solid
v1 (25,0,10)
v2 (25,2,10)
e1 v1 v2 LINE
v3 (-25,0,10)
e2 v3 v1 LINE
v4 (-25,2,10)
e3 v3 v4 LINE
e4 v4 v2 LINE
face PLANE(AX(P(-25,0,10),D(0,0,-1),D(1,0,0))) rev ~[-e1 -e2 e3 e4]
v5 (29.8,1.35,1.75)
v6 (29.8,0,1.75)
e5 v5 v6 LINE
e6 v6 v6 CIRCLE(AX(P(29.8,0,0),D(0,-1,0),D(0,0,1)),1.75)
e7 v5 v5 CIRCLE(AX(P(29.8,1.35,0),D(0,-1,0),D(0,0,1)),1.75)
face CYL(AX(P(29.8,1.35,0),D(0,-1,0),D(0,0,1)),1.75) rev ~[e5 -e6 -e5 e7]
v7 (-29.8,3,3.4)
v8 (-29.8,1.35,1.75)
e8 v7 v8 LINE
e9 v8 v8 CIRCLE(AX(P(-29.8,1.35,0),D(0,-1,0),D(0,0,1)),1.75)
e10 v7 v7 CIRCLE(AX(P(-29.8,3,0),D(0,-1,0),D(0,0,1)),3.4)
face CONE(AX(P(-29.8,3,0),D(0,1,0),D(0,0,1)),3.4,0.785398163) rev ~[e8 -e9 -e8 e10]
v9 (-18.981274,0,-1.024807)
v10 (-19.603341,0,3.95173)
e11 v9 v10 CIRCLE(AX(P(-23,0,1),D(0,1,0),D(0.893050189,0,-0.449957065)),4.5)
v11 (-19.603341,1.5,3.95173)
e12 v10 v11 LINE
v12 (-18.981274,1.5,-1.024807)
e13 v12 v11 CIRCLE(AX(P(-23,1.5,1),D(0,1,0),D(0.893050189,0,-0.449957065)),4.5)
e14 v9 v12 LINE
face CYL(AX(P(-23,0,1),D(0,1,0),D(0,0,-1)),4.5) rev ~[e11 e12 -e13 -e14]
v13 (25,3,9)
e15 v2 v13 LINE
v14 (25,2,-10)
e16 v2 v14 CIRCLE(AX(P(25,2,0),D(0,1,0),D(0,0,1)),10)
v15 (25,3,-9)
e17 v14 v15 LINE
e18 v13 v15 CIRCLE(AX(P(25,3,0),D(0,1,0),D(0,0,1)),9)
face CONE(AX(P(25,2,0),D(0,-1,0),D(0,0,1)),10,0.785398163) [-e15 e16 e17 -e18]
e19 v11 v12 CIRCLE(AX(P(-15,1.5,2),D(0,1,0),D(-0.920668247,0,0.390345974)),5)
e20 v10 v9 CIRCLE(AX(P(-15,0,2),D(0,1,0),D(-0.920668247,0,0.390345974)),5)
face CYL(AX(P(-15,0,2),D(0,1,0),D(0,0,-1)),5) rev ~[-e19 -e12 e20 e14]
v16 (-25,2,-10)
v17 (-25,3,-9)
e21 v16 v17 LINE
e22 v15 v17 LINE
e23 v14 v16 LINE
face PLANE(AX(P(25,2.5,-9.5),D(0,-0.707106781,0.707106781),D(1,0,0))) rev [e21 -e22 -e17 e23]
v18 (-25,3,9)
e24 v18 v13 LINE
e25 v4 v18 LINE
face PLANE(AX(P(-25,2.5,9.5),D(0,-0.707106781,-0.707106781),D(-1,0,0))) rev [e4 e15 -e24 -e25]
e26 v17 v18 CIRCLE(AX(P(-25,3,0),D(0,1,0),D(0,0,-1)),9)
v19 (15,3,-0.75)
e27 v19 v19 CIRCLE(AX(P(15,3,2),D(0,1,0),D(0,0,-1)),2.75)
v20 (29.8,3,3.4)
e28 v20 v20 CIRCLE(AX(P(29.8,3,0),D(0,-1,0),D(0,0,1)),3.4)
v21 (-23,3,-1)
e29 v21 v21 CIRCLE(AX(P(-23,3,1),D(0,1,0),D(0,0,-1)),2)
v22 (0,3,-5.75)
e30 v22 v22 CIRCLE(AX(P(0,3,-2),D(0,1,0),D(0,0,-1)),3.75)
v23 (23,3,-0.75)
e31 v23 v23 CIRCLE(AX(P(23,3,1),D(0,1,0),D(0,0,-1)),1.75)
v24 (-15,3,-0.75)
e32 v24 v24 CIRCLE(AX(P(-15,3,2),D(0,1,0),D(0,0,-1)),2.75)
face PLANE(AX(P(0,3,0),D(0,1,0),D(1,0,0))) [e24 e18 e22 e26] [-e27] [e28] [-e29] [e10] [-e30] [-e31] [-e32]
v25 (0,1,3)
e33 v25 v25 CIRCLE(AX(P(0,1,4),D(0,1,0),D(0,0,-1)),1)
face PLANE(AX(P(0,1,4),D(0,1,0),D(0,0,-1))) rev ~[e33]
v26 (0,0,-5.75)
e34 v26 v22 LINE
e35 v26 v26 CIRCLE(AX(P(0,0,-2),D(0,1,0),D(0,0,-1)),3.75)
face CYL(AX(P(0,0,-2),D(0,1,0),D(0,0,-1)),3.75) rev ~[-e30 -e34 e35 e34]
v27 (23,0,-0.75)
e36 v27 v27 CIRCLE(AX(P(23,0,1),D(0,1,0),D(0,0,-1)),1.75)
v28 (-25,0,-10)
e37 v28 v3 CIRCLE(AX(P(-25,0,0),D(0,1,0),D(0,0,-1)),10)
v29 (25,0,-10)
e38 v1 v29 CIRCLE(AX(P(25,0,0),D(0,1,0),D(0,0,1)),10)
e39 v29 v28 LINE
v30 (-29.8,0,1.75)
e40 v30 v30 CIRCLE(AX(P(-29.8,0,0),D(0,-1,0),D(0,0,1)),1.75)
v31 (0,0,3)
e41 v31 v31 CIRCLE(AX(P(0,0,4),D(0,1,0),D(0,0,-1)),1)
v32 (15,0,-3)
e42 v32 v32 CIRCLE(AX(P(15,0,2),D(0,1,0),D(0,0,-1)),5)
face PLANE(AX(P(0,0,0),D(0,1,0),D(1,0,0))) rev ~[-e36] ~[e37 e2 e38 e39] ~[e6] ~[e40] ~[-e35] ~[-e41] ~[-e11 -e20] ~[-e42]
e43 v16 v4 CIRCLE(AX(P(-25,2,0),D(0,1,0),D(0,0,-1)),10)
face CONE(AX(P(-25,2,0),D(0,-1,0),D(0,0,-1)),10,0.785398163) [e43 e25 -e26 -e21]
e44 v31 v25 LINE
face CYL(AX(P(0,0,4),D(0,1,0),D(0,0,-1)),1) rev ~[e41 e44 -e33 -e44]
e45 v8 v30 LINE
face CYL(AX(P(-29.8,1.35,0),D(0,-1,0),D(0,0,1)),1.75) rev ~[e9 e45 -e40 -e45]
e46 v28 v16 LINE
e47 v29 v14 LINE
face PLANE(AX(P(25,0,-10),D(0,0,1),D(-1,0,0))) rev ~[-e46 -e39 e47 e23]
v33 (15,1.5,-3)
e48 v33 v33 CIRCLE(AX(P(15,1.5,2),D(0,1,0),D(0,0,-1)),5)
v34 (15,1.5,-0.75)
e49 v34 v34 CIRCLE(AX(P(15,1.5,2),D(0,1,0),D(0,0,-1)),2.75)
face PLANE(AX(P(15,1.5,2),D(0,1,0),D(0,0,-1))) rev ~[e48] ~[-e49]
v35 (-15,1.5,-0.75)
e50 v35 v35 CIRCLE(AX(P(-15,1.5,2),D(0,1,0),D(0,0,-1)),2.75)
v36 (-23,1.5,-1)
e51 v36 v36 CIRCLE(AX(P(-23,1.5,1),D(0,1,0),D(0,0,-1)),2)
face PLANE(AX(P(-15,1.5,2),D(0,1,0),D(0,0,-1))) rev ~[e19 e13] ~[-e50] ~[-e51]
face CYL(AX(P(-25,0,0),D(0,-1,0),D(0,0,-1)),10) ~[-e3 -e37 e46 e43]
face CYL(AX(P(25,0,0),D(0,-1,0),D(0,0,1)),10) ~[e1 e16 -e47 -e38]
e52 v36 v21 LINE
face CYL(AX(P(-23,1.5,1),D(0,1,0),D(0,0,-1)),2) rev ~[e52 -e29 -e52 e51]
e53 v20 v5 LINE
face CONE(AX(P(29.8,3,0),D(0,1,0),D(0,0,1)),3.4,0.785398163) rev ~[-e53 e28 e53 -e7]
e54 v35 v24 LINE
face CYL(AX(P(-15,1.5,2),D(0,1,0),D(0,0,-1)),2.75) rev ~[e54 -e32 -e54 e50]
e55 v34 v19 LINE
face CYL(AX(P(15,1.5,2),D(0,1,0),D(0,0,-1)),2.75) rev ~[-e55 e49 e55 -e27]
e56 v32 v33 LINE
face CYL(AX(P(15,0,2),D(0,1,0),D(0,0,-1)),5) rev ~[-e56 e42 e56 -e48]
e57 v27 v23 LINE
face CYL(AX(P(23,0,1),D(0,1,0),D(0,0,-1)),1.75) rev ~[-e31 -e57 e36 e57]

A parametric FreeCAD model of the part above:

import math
import FreeCAD as App
import Part
import Sketcher

V = App.Vector
Q = App.Units.Quantity


def edges_at(feature, points):
    """Names of the edges that pass closest to the given points."""
    edges = feature.Shape.Edges
    near = lambda p: min(range(len(edges)), key=lambda i: edges[i].distToShape(Part.Vertex(*p))[0])
    return sorted({f"Edge{near(p) + 1}" for p in points})

doc = App.newDocument("Part")
params = doc.addObject("Spreadsheet::Sheet", "Params")
for row, (alias, value) in enumerate([
    ("sketch1_radius", "10 mm"),
    ("sketch1_width", "50 mm"),
    ("pad1_length", "3 mm"),
    ("chamfer_size", "1 mm"),
    ("sketch2_diameter", "3.5 mm"),
    ("hole_diameter", "3.5 mm"),
    ("hole_csink_diameter", "6.8 mm"),
    ("sketch3_diameter", "7.5 mm"),
    ("hole2_diameter", "7.5 mm"),
    ("sketch4_diameter", "2 mm"),
    ("hole3_diameter", "2 mm"),
    ("hole3_depth", "1 mm"),
    ("sketch5_diameter", "5.5 mm"),
    ("hole4_diameter", "5.5 mm"),
    ("hole4_cbore_diameter", "10 mm"),
    ("hole4_cbore_depth", "1.5 mm"),
    ("sketch6_diameter", "4 mm"),
    ("hole5_diameter", "4 mm"),
    ("hole5_cbore_diameter", "9 mm"),
    ("hole5_cbore_depth", "1.5 mm"),
    ("sketch7_diameter", "3.5 mm"),
    ("hole6_diameter", "3.5 mm"),
], start=1):
    params.set(f"A{row}", alias)
    params.set(f"B{row}", "=" + value)
    params.setAlias(f"B{row}", alias)

body = doc.addObject("PartDesign::Body", "Body")

sketch1 = body.newObject("Sketcher::SketchObject", "Sketch")
sketch1.AttachmentSupport = (doc.getObject("XZ_Plane"), [""])
sketch1.MapMode = "FlatFace"
sketch1.addGeometry([
    Part.ArcOfCircle(Part.Circle(V(-25, 0, 0), V(0, 0, 1), 10), math.radians(90), math.radians(270)),
    Part.LineSegment(V(-25, 10, 0), V(25, 10, 0)),
    Part.ArcOfCircle(Part.Circle(V(25, 0, 0), V(0, 0, 1), 10), math.radians(-90), math.radians(90)),
    Part.LineSegment(V(25, -10, 0), V(-25, -10, 0)),
], False)
sketch1.addConstraint([
    Sketcher.Constraint("Tangent", 0, 1, 1, 1),
    Sketcher.Constraint("Tangent", 1, 2, 2, 2),
    Sketcher.Constraint("Tangent", 2, 1, 3, 1),
    Sketcher.Constraint("Tangent", 3, 2, 0, 2),
    Sketcher.Constraint("Horizontal", 1),
    Sketcher.Constraint("Horizontal", 3),
    Sketcher.Constraint("Symmetric", 0, 3, 2, 3, -1, 1),
    Sketcher.Constraint("Radius", 0, Q("10 mm")),
    Sketcher.Constraint("DistanceX", 1, 1, 1, 2, Q("50 mm")),
])
sketch1.setExpression("Constraints[7]", "Params.sketch1_radius")
sketch1.setExpression("Constraints[8]", "Params.sketch1_width")
pad1 = body.newObject("PartDesign::Pad", "Pad")
pad1.Profile = sketch1
pad1.setExpression("Length", "Params.pad1_length")
pad1.Reversed = True
doc.recompute()

chamfer = body.newObject("PartDesign::Chamfer", "Chamfer")
chamfer.Base = (pad1, edges_at(pad1, [
    (0, 3, -10),
    (-35, 3, 0),
    (0, 3, 10),
    (35, 3, 0),
]))
chamfer.setExpression("Size", "Params.chamfer_size")

sketch2 = body.newObject("Sketcher::SketchObject", "Sketch001")
sketch2.AttachmentSupport = (doc.getObject("XZ_Plane"), [""])
sketch2.MapMode = "FlatFace"
sketch2.AttachmentOffset = App.Placement(V(0, 0, -3), App.Rotation())
sketch2.addGeometry([
    Part.Circle(V(-29.8, 0, 0), V(0, 0, 1), 1.8),
    Part.Circle(V(29.8, 0, 0), V(0, 0, 1), 1.8),
], False)
sketch2.addConstraint([
    Sketcher.Constraint("Equal", 0, 1),
    Sketcher.Constraint("Symmetric", 0, 3, 1, 3, -1, 1),
    Sketcher.Constraint("PointOnObject", 0, 3, -1),
    Sketcher.Constraint("Diameter", 0, Q("3.5 mm")),
    Sketcher.Constraint("DistanceX", 0, 3, -1, 1, Q("29.8 mm")),
])
sketch2.setExpression("Constraints[3]", "Params.sketch2_diameter")
doc.recompute()
hole = body.newObject("PartDesign::Hole", "Hole")
hole.Profile = sketch2
hole.ThreadType = "None"
hole.setExpression("Diameter", "Params.hole_diameter")
hole.DepthType = "ThroughAll"
hole.HoleCutType = "Countersink"
hole.setExpression("HoleCutDiameter", "Params.hole_csink_diameter")
hole.HoleCutCountersinkAngle = 90
hole.Reversed = True

sketch3 = body.newObject("Sketcher::SketchObject", "Sketch002")
sketch3.AttachmentSupport = (doc.getObject("XZ_Plane"), [""])
sketch3.MapMode = "FlatFace"
sketch3.addGeometry(Part.Circle(V(0, -2, 0), V(0, 0, 1), 3.8), False)
sketch3.addConstraint([
    Sketcher.Constraint("PointOnObject", 0, 3, -2),
    Sketcher.Constraint("Diameter", 0, Q("7.5 mm")),
    Sketcher.Constraint("DistanceY", 0, 3, -1, 1, Q("2 mm")),
])
sketch3.setExpression("Constraints[1]", "Params.sketch3_diameter")
doc.recompute()
hole2 = body.newObject("PartDesign::Hole", "Hole001")
hole2.Profile = sketch3
hole2.ThreadType = "None"
hole2.setExpression("Diameter", "Params.hole2_diameter")
hole2.DepthType = "ThroughAll"

sketch4 = body.newObject("Sketcher::SketchObject", "Sketch003")
sketch4.AttachmentSupport = (doc.getObject("XZ_Plane"), [""])
sketch4.MapMode = "FlatFace"
sketch4.addGeometry(Part.Circle(V(0, 4, 0), V(0, 0, 1), 1), False)
sketch4.addConstraint([
    Sketcher.Constraint("PointOnObject", 0, 3, -2),
    Sketcher.Constraint("Diameter", 0, Q("2 mm")),
    Sketcher.Constraint("DistanceY", -1, 1, 0, 3, Q("4 mm")),
])
sketch4.setExpression("Constraints[1]", "Params.sketch4_diameter")
doc.recompute()
hole3 = body.newObject("PartDesign::Hole", "Hole002")
hole3.Profile = sketch4
hole3.ThreadType = "None"
hole3.setExpression("Diameter", "Params.hole3_diameter")
hole3.DepthType = "Dimension"
hole3.setExpression("Depth", "Params.hole3_depth")
hole3.DrillPoint = "Flat"

sketch5 = body.newObject("Sketcher::SketchObject", "Sketch004")
sketch5.AttachmentSupport = (doc.getObject("XZ_Plane"), [""])
sketch5.MapMode = "FlatFace"
sketch5.addGeometry([
    Part.Circle(V(-15, 2, 0), V(0, 0, 1), 2.8),
    Part.Circle(V(15, 2, 0), V(0, 0, 1), 2.8),
], False)
sketch5.addConstraint([
    Sketcher.Constraint("Equal", 0, 1),
    Sketcher.Constraint("Symmetric", 0, 3, 1, 3, -2),
    Sketcher.Constraint("Diameter", 0, Q("5.5 mm")),
    Sketcher.Constraint("DistanceX", 0, 3, -1, 1, Q("15 mm")),
    Sketcher.Constraint("DistanceY", -1, 1, 0, 3, Q("2 mm")),
])
sketch5.setExpression("Constraints[2]", "Params.sketch5_diameter")
doc.recompute()
hole4 = body.newObject("PartDesign::Hole", "Hole003")
hole4.Profile = sketch5
hole4.ThreadType = "None"
hole4.setExpression("Diameter", "Params.hole4_diameter")
hole4.DepthType = "ThroughAll"
hole4.HoleCutType = "Counterbore"
hole4.setExpression("HoleCutDiameter", "Params.hole4_cbore_diameter")
hole4.setExpression("HoleCutDepth", "Params.hole4_cbore_depth")

sketch6 = body.newObject("Sketcher::SketchObject", "Sketch005")
sketch6.AttachmentSupport = (doc.getObject("XZ_Plane"), [""])
sketch6.MapMode = "FlatFace"
sketch6.addGeometry(Part.Circle(V(-23, 1, 0), V(0, 0, 1), 2), False)
sketch6.addConstraint([
    Sketcher.Constraint("Diameter", 0, Q("4 mm")),
    Sketcher.Constraint("DistanceX", 0, 3, -1, 1, Q("23 mm")),
    Sketcher.Constraint("DistanceY", -1, 1, 0, 3, Q("1 mm")),
])
sketch6.setExpression("Constraints[0]", "Params.sketch6_diameter")
doc.recompute()
hole5 = body.newObject("PartDesign::Hole", "Hole004")
hole5.Profile = sketch6
hole5.ThreadType = "None"
hole5.setExpression("Diameter", "Params.hole5_diameter")
hole5.DepthType = "ThroughAll"
hole5.HoleCutType = "Counterbore"
hole5.setExpression("HoleCutDiameter", "Params.hole5_cbore_diameter")
hole5.setExpression("HoleCutDepth", "Params.hole5_cbore_depth")

sketch7 = body.newObject("Sketcher::SketchObject", "Sketch006")
sketch7.AttachmentSupport = (doc.getObject("XZ_Plane"), [""])
sketch7.MapMode = "FlatFace"
sketch7.addGeometry(Part.Circle(V(23, 1, 0), V(0, 0, 1), 1.8), False)
sketch7.addConstraint([
    Sketcher.Constraint("Diameter", 0, Q("3.5 mm")),
    Sketcher.Constraint("DistanceX", -1, 1, 0, 3, Q("23 mm")),
    Sketcher.Constraint("DistanceY", -1, 1, 0, 3, Q("1 mm")),
])
sketch7.setExpression("Constraints[0]", "Params.sketch7_diameter")
doc.recompute()
hole6 = body.newObject("PartDesign::Hole", "Hole005")
hole6.Profile = sketch7
hole6.ThreadType = "None"
hole6.setExpression("Diameter", "Params.hole6_diameter")
hole6.DepthType = "ThroughAll"

doc.recompute()
